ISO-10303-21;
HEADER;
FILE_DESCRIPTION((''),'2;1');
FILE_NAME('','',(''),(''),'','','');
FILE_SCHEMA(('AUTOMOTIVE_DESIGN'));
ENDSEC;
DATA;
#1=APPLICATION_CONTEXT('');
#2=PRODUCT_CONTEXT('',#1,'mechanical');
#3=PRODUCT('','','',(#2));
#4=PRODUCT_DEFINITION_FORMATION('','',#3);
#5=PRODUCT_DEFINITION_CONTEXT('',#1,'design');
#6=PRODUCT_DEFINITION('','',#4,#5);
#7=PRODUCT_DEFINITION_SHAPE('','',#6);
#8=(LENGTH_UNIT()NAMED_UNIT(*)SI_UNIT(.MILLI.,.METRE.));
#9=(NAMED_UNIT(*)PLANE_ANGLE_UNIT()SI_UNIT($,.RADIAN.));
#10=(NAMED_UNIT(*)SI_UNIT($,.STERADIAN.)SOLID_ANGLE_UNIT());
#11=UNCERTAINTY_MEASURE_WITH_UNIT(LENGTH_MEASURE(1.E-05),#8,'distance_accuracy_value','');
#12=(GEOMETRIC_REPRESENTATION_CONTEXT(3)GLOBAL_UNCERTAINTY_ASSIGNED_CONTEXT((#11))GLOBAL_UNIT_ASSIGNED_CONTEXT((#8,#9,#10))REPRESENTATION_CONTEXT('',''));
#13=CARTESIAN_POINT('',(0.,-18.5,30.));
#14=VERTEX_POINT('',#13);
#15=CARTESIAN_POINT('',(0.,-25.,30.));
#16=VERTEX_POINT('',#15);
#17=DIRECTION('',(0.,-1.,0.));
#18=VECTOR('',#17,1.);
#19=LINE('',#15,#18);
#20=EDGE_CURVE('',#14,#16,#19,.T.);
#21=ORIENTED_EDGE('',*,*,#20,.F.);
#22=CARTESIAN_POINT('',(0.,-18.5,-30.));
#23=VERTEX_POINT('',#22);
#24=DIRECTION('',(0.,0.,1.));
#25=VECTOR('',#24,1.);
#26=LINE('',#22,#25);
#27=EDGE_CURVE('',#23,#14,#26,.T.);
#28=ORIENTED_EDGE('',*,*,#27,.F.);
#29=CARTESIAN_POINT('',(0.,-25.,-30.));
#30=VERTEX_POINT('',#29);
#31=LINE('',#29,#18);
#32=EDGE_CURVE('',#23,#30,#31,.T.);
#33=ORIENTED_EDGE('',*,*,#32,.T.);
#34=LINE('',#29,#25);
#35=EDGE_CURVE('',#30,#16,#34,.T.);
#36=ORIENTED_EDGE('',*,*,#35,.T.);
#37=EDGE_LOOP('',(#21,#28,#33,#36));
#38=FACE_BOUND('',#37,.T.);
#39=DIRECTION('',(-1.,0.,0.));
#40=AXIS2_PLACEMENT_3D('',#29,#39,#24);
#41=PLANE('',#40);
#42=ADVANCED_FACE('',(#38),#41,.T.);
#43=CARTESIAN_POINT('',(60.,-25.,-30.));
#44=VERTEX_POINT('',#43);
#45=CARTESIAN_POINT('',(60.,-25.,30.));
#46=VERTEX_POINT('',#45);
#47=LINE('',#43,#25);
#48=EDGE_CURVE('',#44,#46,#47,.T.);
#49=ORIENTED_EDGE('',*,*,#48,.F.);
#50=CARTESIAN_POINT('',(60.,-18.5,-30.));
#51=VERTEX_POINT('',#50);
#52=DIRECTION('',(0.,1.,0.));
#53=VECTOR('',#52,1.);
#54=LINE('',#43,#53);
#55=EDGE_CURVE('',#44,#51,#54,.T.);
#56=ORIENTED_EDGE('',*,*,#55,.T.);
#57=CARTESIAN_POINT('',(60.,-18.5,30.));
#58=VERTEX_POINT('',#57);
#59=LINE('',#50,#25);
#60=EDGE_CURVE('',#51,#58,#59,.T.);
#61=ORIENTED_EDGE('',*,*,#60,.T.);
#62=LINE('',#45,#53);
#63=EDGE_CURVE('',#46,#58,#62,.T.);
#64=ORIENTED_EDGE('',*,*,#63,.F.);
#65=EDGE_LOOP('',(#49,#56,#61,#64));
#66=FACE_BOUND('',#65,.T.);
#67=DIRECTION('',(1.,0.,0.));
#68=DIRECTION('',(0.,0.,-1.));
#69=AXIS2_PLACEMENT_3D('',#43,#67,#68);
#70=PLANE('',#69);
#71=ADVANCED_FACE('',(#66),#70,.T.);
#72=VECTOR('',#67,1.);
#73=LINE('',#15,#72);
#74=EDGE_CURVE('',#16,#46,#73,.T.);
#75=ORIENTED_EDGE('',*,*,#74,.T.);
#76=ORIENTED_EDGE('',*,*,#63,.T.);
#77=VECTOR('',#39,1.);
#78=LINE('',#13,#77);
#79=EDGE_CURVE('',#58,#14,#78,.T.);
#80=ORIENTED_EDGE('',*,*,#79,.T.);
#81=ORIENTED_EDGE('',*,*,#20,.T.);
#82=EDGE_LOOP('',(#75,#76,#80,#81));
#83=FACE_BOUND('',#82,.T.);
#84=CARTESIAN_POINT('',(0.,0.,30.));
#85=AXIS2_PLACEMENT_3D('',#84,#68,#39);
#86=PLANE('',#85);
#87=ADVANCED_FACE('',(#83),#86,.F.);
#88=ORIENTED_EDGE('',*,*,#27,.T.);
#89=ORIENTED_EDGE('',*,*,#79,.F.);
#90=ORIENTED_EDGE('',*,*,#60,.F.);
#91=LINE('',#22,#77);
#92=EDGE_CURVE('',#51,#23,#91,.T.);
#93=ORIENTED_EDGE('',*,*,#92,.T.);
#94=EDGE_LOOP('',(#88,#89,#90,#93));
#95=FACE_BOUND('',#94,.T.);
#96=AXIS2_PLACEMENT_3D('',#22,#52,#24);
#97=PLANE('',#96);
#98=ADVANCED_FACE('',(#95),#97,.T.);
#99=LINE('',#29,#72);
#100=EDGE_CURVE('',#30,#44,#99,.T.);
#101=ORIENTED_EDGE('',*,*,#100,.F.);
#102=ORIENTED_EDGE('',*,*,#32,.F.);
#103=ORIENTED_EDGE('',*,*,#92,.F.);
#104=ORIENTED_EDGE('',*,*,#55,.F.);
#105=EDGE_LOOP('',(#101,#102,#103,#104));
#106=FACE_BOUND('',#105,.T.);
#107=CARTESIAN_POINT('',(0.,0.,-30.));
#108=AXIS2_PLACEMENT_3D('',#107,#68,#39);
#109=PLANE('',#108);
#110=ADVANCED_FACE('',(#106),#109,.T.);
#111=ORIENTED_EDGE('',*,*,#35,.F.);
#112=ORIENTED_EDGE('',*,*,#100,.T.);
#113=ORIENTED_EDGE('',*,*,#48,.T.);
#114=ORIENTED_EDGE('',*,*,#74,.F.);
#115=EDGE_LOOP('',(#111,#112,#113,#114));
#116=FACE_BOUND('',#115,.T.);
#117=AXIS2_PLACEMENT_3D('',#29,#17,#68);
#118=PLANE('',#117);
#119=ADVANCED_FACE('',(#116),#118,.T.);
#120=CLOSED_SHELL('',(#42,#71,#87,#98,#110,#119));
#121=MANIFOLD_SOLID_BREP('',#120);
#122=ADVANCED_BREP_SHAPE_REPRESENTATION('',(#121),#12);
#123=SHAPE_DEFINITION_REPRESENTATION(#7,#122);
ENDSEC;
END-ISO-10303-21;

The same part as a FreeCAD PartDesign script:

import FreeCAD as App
import Part
import Sketcher
from FreeCAD import Vector


def add_polygon(sketch, points):
    """Adds a closed chain of lines whose ends are joined by coincident constraints."""
    first, n = sketch.GeometryCount, len(points)
    for a, b in zip(points, points[1:] + points[:1]):
        sketch.addGeometry(Part.LineSegment(App.Vector(*a, 0), App.Vector(*b, 0)), False)
    for i in range(n):
        sketch.addConstraint(Sketcher.Constraint("Coincident", first + i, 2, first + (i + 1) % n, 1))

doc = App.newDocument("Part")
body = doc.addObject("PartDesign::Body", "Body")

# Sketch on XY plane
sketch1 = body.newObject("Sketcher::SketchObject", "Sketch")
sketch1.AttachmentSupport = (doc.getObject("XY_Plane"), [""])
sketch1.MapMode = "FlatFace"
sketch1.AttachmentOffset = App.Placement(Vector(0, 0, 30), App.Rotation())
add_polygon(sketch1, [(0, -18.5), (0, -25), (60, -25), (60, -18.5)])  # lines 0-3
sketch1.addConstraint([
    Sketcher.Constraint("Vertical", 0),
    Sketcher.Constraint("Horizontal", 1),
    Sketcher.Constraint("Vertical", 2),
    Sketcher.Constraint("Horizontal", 3),
    Sketcher.Constraint("PointOnObject", 0, 2, -2),
    Sketcher.Constraint("DistanceX", 1, 1, 1, 2, 60.0),
    Sketcher.Constraint("DistanceY", 0, 2, 0, 1, 6.5),
    Sketcher.Constraint("DistanceY", 0, 2, -1, 1, 25.0),
])
pad1 = body.newObject("PartDesign::Pad", "Pad")
pad1.Profile = sketch1
pad1.Length = 60
pad1.Reversed = True

doc.recompute()
